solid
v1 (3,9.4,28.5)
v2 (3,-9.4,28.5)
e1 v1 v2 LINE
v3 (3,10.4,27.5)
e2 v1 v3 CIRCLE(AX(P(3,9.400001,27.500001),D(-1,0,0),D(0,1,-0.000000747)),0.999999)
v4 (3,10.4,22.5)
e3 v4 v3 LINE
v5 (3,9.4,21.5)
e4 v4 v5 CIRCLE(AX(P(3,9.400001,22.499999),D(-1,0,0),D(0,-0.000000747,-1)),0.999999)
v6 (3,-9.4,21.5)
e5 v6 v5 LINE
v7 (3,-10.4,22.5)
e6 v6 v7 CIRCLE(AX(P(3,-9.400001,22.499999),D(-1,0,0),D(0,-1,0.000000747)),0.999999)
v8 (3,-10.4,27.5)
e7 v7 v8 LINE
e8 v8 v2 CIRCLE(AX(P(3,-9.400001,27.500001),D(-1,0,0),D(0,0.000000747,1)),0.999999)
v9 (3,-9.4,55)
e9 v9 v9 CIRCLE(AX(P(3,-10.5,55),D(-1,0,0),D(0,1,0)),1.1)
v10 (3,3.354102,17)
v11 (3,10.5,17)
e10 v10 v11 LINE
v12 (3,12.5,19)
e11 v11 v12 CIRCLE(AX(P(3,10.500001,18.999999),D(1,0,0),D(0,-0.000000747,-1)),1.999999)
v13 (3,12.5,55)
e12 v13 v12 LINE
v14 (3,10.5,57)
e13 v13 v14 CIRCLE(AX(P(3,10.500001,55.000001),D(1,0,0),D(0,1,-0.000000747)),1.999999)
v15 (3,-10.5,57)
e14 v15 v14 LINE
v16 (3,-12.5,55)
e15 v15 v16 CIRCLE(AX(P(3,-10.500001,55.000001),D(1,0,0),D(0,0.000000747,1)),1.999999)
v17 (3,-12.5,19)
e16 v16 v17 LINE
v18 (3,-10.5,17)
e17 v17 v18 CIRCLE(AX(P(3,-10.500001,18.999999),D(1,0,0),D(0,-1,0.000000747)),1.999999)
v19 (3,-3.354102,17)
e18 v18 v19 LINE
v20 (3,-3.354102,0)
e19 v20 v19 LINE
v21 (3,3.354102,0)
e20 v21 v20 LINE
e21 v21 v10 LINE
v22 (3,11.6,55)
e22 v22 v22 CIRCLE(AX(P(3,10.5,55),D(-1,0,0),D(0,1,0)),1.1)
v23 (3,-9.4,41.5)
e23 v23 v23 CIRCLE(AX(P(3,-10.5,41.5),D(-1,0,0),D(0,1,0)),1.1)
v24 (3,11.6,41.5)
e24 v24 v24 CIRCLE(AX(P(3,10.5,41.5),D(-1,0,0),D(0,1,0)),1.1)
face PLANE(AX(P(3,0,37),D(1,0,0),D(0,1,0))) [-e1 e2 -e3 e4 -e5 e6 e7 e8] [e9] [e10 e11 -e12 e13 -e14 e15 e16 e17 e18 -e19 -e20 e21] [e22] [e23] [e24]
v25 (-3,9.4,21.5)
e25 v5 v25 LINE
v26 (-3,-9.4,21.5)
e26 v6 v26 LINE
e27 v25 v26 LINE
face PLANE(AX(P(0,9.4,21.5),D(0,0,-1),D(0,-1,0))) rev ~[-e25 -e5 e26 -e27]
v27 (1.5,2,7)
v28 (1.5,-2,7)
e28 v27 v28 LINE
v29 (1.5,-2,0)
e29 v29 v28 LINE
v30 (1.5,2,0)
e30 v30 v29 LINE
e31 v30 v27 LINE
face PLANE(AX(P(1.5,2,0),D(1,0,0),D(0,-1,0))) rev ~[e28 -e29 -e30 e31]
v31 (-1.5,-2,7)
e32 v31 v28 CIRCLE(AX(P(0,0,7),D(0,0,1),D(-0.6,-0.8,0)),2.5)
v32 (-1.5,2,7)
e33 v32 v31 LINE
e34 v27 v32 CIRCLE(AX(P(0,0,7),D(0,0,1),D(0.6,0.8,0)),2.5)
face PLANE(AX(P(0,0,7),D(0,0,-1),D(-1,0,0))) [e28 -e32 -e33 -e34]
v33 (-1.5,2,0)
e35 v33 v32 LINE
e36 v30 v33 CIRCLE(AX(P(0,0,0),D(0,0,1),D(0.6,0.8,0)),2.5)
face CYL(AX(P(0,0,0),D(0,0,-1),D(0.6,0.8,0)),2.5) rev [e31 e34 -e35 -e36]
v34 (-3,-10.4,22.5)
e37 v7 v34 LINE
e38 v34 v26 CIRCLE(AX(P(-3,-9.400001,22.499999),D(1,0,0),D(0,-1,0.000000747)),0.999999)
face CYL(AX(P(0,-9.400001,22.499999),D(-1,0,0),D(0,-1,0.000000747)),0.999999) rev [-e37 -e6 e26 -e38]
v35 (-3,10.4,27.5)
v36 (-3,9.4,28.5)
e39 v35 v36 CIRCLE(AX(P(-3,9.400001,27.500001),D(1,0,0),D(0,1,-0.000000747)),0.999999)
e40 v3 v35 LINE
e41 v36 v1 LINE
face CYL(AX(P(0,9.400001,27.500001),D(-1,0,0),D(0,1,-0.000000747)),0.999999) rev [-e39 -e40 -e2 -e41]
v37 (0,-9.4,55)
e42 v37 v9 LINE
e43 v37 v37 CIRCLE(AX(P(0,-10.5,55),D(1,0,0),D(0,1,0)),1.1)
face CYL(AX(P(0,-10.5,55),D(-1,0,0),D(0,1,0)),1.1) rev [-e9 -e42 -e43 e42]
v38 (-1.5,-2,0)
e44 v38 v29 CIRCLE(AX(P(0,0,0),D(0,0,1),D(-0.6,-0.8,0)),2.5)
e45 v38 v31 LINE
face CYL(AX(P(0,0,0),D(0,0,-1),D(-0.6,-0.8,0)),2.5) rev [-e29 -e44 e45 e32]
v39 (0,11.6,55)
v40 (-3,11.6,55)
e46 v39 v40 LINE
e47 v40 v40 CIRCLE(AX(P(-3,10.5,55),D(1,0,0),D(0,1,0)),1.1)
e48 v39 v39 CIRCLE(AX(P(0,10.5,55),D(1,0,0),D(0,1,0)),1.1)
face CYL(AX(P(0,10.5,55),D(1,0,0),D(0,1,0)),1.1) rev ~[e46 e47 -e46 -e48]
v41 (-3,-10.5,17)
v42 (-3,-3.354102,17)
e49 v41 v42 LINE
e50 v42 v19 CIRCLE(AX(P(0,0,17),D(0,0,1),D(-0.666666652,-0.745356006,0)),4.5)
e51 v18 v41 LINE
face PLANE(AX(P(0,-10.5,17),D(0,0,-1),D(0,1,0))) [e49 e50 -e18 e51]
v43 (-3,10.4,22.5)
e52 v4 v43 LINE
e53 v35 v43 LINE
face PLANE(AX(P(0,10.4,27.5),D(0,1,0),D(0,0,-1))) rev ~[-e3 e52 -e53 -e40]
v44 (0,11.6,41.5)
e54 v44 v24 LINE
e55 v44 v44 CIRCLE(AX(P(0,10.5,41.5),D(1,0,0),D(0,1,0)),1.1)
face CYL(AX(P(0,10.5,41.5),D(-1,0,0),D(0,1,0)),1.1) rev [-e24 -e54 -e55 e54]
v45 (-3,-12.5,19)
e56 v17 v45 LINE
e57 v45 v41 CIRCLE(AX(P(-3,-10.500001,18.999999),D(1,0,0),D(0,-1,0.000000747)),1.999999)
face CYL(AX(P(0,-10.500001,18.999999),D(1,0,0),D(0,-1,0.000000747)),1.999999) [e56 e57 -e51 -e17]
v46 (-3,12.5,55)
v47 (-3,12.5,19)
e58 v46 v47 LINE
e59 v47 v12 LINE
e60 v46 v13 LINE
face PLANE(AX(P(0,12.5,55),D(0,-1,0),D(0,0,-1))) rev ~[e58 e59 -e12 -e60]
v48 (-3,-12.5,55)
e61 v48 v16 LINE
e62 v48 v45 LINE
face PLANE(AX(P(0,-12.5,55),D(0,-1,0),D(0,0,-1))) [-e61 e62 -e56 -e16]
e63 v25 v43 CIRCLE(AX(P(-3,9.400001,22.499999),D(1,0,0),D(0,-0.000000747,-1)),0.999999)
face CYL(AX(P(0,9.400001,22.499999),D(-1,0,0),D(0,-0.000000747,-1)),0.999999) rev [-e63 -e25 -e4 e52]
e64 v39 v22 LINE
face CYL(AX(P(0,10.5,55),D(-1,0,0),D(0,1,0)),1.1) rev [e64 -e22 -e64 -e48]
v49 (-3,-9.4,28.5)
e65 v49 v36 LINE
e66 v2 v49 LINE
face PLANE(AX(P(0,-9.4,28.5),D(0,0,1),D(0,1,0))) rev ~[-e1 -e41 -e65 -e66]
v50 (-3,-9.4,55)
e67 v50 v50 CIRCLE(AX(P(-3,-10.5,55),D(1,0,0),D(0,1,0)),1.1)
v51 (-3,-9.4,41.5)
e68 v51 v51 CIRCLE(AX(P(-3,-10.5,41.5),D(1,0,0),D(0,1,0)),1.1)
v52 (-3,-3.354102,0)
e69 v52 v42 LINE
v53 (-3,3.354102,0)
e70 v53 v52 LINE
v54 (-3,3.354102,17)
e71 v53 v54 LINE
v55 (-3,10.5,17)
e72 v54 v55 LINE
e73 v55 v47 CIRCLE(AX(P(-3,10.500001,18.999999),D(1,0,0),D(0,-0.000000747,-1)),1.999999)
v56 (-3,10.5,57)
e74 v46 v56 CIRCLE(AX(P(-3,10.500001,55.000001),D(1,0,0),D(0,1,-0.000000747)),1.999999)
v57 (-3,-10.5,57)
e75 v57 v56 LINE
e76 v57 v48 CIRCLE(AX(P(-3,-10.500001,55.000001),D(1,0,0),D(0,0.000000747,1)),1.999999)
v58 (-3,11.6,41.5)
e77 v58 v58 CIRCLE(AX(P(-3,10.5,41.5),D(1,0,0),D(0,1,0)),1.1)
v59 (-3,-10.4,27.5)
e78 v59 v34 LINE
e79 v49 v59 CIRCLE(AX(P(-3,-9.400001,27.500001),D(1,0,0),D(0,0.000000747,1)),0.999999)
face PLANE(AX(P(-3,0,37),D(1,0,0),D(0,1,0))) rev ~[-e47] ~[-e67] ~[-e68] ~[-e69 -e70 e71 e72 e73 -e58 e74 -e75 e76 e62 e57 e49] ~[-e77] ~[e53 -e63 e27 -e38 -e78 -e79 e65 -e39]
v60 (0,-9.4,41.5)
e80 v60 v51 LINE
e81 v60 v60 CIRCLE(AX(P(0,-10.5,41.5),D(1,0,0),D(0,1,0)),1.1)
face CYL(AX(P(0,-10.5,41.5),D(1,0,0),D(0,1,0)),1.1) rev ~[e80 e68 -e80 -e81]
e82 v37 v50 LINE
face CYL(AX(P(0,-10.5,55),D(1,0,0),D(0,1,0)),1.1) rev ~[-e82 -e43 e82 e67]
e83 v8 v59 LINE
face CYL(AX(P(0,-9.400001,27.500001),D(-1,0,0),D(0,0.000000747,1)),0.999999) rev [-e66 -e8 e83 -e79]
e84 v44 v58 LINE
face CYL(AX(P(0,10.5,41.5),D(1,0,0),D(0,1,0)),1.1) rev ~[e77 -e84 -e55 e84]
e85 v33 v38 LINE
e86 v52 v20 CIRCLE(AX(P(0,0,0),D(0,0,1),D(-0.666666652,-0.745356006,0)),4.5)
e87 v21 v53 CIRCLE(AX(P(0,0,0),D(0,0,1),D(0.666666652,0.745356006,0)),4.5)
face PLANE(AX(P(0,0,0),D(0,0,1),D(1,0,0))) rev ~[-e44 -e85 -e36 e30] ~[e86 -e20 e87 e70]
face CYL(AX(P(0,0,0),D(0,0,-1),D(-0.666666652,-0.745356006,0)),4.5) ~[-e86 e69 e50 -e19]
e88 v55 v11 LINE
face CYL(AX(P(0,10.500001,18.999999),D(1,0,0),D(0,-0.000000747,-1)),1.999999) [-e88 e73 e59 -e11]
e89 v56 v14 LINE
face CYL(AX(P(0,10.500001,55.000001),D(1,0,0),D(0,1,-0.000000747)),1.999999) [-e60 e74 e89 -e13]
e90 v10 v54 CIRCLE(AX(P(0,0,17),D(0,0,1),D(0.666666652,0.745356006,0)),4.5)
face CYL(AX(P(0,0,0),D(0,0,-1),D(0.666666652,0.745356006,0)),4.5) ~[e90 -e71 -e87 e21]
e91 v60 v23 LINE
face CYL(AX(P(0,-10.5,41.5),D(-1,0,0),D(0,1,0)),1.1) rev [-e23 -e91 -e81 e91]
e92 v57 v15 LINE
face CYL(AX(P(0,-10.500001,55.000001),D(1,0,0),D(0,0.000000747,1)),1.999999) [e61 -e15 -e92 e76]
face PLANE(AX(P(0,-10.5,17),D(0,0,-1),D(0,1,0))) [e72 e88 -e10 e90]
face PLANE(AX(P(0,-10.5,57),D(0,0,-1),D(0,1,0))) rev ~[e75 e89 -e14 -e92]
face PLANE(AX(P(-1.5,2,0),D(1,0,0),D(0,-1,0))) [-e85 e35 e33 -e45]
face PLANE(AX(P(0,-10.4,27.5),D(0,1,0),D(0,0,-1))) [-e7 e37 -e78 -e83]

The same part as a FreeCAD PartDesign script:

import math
import FreeCAD as App
import Part
import Sketcher

V = App.Vector
Q = App.Units.Quantity

doc = App.newDocument("Part")
body = doc.addObject("PartDesign::Body", "Body")

sketch1 = body.newObject("Sketcher::SketchObject", "Sketch")
sketch1.AttachmentSupport = (doc.getObject("XY_Plane"), [""])
sketch1.MapMode = "FlatFace"
sketch1.addGeometry([
    Part.LineSegment(V(-3, 3.354102, 0), V(-3, -3.354102, 0)),
    Part.ArcOfCircle(Part.Circle(V(0, 0, 0), V(0, 0, 1), 4.5), math.radians(-131.810314), math.radians(-48.189686)),
    Part.LineSegment(V(3, -3.354102, 0), V(3, 3.354102, 0)),
    Part.ArcOfCircle(Part.Circle(V(0, 0, 0), V(0, 0, 1), 4.5), math.radians(48.189686), math.radians(131.810314)),
], False)
sketch1.addConstraint([
    Sketcher.Constraint("Coincident", 0, 2, 1, 1),
    Sketcher.Constraint("Coincident", 1, 2, 2, 1),
    Sketcher.Constraint("Coincident", 2, 2, 3, 1),
    Sketcher.Constraint("Coincident", 3, 2, 0, 1),
    Sketcher.Constraint("Vertical", 0),
    Sketcher.Constraint("Vertical", 2),
    Sketcher.Constraint("Coincident", 1, 3, -1, 1),
    Sketcher.Constraint("Coincident", 3, 3, -1, 1),
    Sketcher.Constraint("Equal", 1, 3),
    Sketcher.Constraint("Horizontal", 0, 2, 1, 2),
    Sketcher.Constraint("Radius", 1, Q("4.5 mm")),
    Sketcher.Constraint("DistanceX", 0, 2, -1, 1, Q("3 mm")),
])
pad1 = body.newObject("PartDesign::Pad", "Pad")
pad1.Profile = sketch1
pad1.Length = 17

sketch2 = body.newObject("Sketcher::SketchObject", "Sketch001")
sketch2.AttachmentSupport = (doc.getObject("XY_Plane"), [""])
sketch2.MapMode = "FlatFace"
sketch2.addGeometry([
    Part.LineSegment(V(1.5, -2, 0), V(1.5, 2, 0)),
    Part.ArcOfCircle(Part.Circle(V(0, 0, 0), V(0, 0, 1), 2.5), math.radians(53.130102), math.radians(126.869898)),
    Part.LineSegment(V(-1.5, 2, 0), V(-1.5, -2, 0)),
    Part.ArcOfCircle(Part.Circle(V(0, 0, 0), V(0, 0, 1), 2.5), math.radians(-126.869898), math.radians(-53.130102)),
], False)
sketch2.addConstraint([
    Sketcher.Constraint("Coincident", 0, 2, 1, 1),
    Sketcher.Constraint("Coincident", 1, 2, 2, 1),
    Sketcher.Constraint("Coincident", 2, 2, 3, 1),
    Sketcher.Constraint("Coincident", 3, 2, 0, 1),
    Sketcher.Constraint("Vertical", 0),
    Sketcher.Constraint("Vertical", 2),
    Sketcher.Constraint("Coincident", 1, 3, -1, 1),
    Sketcher.Constraint("Coincident", 3, 3, -1, 1),
    Sketcher.Constraint("Equal", 1, 3),
    Sketcher.Constraint("Horizontal", 0, 2, 1, 2),
    Sketcher.Constraint("Radius", 1, Q("2.5 mm")),
    Sketcher.Constraint("DistanceY", 0, 1, 0, 2, Q("4 mm")),
])
pocket1 = body.newObject("PartDesign::Pocket", "Pocket")
pocket1.Profile = sketch2
pocket1.Length = 7
pocket1.Reversed = True

sketch3 = body.newObject("Sketcher::SketchObject", "Sketch002")
sketch3.AttachmentSupport = (doc.getObject("YZ_Plane"), [""])
sketch3.MapMode = "FlatFace"
sketch3.addGeometry([
    Part.LineSegment(V(-10.5, 17, 0), V(10.5, 17, 0)),
    Part.ArcOfCircle(Part.Circle(V(10.500001, 18.999999, 0), V(0, 0, 1), 1.999999), math.radians(-90.000043), math.radians(0.000043)),
    Part.LineSegment(V(12.5, 19, 0), V(12.5, 55, 0)),
    Part.ArcOfCircle(Part.Circle(V(10.500001, 55.000001, 0), V(0, 0, 1), 1.999999), math.radians(-0.000043), math.radians(90.000043)),
    Part.LineSegment(V(10.5, 57, 0), V(-10.5, 57, 0)),
    Part.ArcOfCircle(Part.Circle(V(-10.500001, 55.000001, 0), V(0, 0, 1), 1.999999), math.radians(89.999957), math.radians(180.000043)),
    Part.LineSegment(V(-12.5, 55, 0), V(-12.5, 19, 0)),
    Part.ArcOfCircle(Part.Circle(V(-10.500001, 18.999999, 0), V(0, 0, 1), 1.999999), math.radians(179.999957), math.radians(270.000043)),
], False)
sketch3.addConstraint([
    Sketcher.Constraint("Tangent", 0, 2, 1, 1),
    Sketcher.Constraint("Tangent", 1, 2, 2, 1),
    Sketcher.Constraint("Tangent", 2, 2, 3, 1),
    Sketcher.Constraint("Tangent", 3, 2, 4, 1),
    Sketcher.Constraint("Tangent", 4, 2, 5, 1),
    Sketcher.Constraint("Tangent", 5, 2, 6, 1),
    Sketcher.Constraint("Tangent", 6, 2, 7, 1),
    Sketcher.Constraint("Tangent", 7, 2, 0, 1),
    Sketcher.Constraint("Horizontal", 0),
    Sketcher.Constraint("Vertical", 2),
    Sketcher.Constraint("Horizontal", 4),
    Sketcher.Constraint("Vertical", 6),
    Sketcher.Constraint("Equal", 1, 3),
    Sketcher.Constraint("Equal", 3, 5),
    Sketcher.Constraint("Equal", 5, 7),
    Sketcher.Constraint("Radius", 1, Q("1.999999 mm")),
    Sketcher.Constraint("DistanceX", 0, 1, 0, 2, Q("21 mm")),
    Sketcher.Constraint("DistanceY", 2, 1, 2, 2, Q("36 mm")),
    Sketcher.Constraint("DistanceY", -1, 1, 1, 3, Q("18.999999 mm")),
    Sketcher.Constraint("DistanceX", -1, 1, 1, 3, Q("10.500001 mm")),
])
pad2 = body.newObject("PartDesign::Pad", "Pad001")
pad2.Profile = sketch3
pad2.Type = "TwoLengths"
pad2.Length = 3
pad2.Length2 = 3

sketch4 = body.newObject("Sketcher::SketchObject", "Sketch003")
sketch4.AttachmentSupport = (doc.getObject("YZ_Plane"), [""])
sketch4.MapMode = "FlatFace"
sketch4.addGeometry([
    Part.Circle(V(-10.5, 55, 0), V(0, 0, 1), 1.1),
    Part.Circle(V(10.5, 55, 0), V(0, 0, 1), 1.1),
    Part.Circle(V(10.5, 41.5, 0), V(0, 0, 1), 1.1),
    Part.Circle(V(-10.5, 41.5, 0), V(0, 0, 1), 1.1),
], False)
sketch4.addConstraint([
    Sketcher.Constraint("Equal", 0, 1),
    Sketcher.Constraint("Equal", 1, 2),
    Sketcher.Constraint("Equal", 2, 3),
    Sketcher.Constraint("Symmetric", 0, 3, 1, 3, -2),
    Sketcher.Constraint("Symmetric", 2, 3, 3, 3, -2),
    Sketcher.Constraint("Vertical", 1, 3, 2, 3),
    Sketcher.Constraint("Diameter", 0, Q("2.2 mm")),
    Sketcher.Constraint("DistanceY", -1, 1, 0, 3, Q("55 mm")),
    Sketcher.Constraint("DistanceX", 0, 3, 1, 3, Q("21 mm")),
    Sketcher.Constraint("DistanceY", -1, 1, 2, 3, Q("41.5 mm")),
])
pocket2 = body.newObject("PartDesign::Pocket", "Pocket001")
pocket2.Profile = sketch4
pocket2.Type = "ThroughAll"
pocket2.Midplane = True

sketch5 = body.newObject("Sketcher::SketchObject", "Sketch004")
sketch5.AttachmentSupport = (doc.getObject("YZ_Plane"), [""])
sketch5.MapMode = "FlatFace"
sketch5.addGeometry([
    Part.LineSegment(V(9.4, 28.5, 0), V(-9.4, 28.5, 0)),
    Part.ArcOfCircle(Part.Circle(V(-9.400001, 27.500001, 0), V(0, 0, 1), 0.999999), math.radians(89.999957), math.radians(180.000043)),
    Part.LineSegment(V(-10.4, 27.5, 0), V(-10.4, 22.5, 0)),
    Part.ArcOfCircle(Part.Circle(V(-9.400001, 22.499999, 0), V(0, 0, 1), 0.999999), math.radians(179.999957), math.radians(270.000043)),
    Part.LineSegment(V(-9.4, 21.5, 0), V(9.4, 21.5, 0)),
    Part.ArcOfCircle(Part.Circle(V(9.400001, 22.499999, 0), V(0, 0, 1), 0.999999), math.radians(-90.000043), math.radians(0.000043)),
    Part.LineSegment(V(10.4, 22.5, 0), V(10.4, 27.5, 0)),
    Part.ArcOfCircle(Part.Circle(V(9.400001, 27.500001, 0), V(0, 0, 1), 0.999999), math.radians(-0.000043), math.radians(90.000043)),
], False)
sketch5.addConstraint([
    Sketcher.Constraint("Tangent", 0, 2, 1, 1),
    Sketcher.Constraint("Tangent", 1, 2, 2, 1),
    Sketcher.Constraint("Tangent", 2, 2, 3, 1),
    Sketcher.Constraint("Tangent", 3, 2, 4, 1),
    Sketcher.Constraint("Tangent", 4, 2, 5, 1),
    Sketcher.Constraint("Tangent", 5, 2, 6, 1),
    Sketcher.Constraint("Tangent", 6, 2, 7, 1),
    Sketcher.Constraint("Tangent", 7, 2, 0, 1),
    Sketcher.Constraint("Horizontal", 0),
    Sketcher.Constraint("Vertical", 2),
    Sketcher.Constraint("Horizontal", 4),
    Sketcher.Constraint("Vertical", 6),
    Sketcher.Constraint("Equal", 1, 3),
    Sketcher.Constraint("Equal", 3, 5),
    Sketcher.Constraint("Equal", 5, 7),
    Sketcher.Constraint("Radius", 1, Q("0.999999 mm")),
    Sketcher.Constraint("DistanceY", 2, 2, 2, 1, Q("5 mm")),
    Sketcher.Constraint("DistanceX", 0, 2, 0, 1, Q("18.8 mm")),
    Sketcher.Constraint("DistanceX", 1, 3, -1, 1, Q("9.400001 mm")),
    Sketcher.Constraint("DistanceY", -1, 1, 1, 3, Q("27.500001 mm")),
])
pocket3 = body.newObject("PartDesign::Pocket", "Pocket002")
pocket3.Profile = sketch5
pocket3.Type = "ThroughAll"
pocket3.Midplane = True

doc.recompute()
